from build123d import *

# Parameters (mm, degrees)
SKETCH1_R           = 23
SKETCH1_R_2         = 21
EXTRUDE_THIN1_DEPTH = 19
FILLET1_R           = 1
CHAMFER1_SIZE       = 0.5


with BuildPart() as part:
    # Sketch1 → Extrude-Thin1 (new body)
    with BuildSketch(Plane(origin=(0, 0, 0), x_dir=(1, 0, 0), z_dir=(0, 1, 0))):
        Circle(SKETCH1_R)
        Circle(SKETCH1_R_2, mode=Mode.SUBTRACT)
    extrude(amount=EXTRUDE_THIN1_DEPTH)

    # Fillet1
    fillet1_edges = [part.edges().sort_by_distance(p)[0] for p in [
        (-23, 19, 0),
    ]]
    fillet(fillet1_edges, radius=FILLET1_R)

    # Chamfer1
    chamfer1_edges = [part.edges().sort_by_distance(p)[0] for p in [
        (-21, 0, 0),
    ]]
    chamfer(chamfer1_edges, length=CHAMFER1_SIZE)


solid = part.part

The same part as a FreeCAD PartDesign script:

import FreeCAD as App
import Part
import Sketcher

V = App.Vector
Q = App.Units.Quantity


def edges_at(feature, points):
    """Names of the edges that pass closest to the given points."""
    edges = feature.Shape.Edges
    near = lambda p: min(range(len(edges)), key=lambda i: edges[i].distToShape(Part.Vertex(*p))[0])
    return sorted({f"Edge{near(p) + 1}" for p in points})

doc = App.newDocument("Part")
body = doc.addObject("PartDesign::Body", "Body")

# Sketch on XZ plane
sketch1 = body.newObject("Sketcher::SketchObject", "Sketch")
sketch1.AttachmentSupport = (doc.getObject("XZ_Plane"), [""])
sketch1.MapMode = "FlatFace"
sketch1.addGeometry(Part.Circle(V(0, 0, 0), V(0, 0, 1), 23), False)
sketch1.addGeometry(Part.Circle(V(0, 0, 0), V(0, 0, 1), 21), False)
sketch1.addConstraint(Sketcher.Constraint("Coincident", 0, 3, -1, 1))
sketch1.addConstraint(Sketcher.Constraint("Coincident", 1, 3, -1, 1))
sketch1.addConstraint(Sketcher.Constraint("Diameter", 0, Q("46 mm")))
sketch1.addConstraint(Sketcher.Constraint("Diameter", 1, Q("42 mm")))
pad1 = body.newObject("PartDesign::Pad", "Pad")
pad1.Profile = sketch1
pad1.Length = 19
pad1.Reversed = True
doc.recompute()

fillet = body.newObject("PartDesign::Fillet", "Fillet")
fillet.Base = (pad1, edges_at(pad1, [(-23, 19, 0)]))
fillet.Radius = 1
doc.recompute()

chamfer = body.newObject("PartDesign::Chamfer", "Chamfer")
chamfer.Base = (fillet, edges_at(fillet, [(-21, 0, 0)]))
chamfer.Size = 0.5

doc.recompute()
